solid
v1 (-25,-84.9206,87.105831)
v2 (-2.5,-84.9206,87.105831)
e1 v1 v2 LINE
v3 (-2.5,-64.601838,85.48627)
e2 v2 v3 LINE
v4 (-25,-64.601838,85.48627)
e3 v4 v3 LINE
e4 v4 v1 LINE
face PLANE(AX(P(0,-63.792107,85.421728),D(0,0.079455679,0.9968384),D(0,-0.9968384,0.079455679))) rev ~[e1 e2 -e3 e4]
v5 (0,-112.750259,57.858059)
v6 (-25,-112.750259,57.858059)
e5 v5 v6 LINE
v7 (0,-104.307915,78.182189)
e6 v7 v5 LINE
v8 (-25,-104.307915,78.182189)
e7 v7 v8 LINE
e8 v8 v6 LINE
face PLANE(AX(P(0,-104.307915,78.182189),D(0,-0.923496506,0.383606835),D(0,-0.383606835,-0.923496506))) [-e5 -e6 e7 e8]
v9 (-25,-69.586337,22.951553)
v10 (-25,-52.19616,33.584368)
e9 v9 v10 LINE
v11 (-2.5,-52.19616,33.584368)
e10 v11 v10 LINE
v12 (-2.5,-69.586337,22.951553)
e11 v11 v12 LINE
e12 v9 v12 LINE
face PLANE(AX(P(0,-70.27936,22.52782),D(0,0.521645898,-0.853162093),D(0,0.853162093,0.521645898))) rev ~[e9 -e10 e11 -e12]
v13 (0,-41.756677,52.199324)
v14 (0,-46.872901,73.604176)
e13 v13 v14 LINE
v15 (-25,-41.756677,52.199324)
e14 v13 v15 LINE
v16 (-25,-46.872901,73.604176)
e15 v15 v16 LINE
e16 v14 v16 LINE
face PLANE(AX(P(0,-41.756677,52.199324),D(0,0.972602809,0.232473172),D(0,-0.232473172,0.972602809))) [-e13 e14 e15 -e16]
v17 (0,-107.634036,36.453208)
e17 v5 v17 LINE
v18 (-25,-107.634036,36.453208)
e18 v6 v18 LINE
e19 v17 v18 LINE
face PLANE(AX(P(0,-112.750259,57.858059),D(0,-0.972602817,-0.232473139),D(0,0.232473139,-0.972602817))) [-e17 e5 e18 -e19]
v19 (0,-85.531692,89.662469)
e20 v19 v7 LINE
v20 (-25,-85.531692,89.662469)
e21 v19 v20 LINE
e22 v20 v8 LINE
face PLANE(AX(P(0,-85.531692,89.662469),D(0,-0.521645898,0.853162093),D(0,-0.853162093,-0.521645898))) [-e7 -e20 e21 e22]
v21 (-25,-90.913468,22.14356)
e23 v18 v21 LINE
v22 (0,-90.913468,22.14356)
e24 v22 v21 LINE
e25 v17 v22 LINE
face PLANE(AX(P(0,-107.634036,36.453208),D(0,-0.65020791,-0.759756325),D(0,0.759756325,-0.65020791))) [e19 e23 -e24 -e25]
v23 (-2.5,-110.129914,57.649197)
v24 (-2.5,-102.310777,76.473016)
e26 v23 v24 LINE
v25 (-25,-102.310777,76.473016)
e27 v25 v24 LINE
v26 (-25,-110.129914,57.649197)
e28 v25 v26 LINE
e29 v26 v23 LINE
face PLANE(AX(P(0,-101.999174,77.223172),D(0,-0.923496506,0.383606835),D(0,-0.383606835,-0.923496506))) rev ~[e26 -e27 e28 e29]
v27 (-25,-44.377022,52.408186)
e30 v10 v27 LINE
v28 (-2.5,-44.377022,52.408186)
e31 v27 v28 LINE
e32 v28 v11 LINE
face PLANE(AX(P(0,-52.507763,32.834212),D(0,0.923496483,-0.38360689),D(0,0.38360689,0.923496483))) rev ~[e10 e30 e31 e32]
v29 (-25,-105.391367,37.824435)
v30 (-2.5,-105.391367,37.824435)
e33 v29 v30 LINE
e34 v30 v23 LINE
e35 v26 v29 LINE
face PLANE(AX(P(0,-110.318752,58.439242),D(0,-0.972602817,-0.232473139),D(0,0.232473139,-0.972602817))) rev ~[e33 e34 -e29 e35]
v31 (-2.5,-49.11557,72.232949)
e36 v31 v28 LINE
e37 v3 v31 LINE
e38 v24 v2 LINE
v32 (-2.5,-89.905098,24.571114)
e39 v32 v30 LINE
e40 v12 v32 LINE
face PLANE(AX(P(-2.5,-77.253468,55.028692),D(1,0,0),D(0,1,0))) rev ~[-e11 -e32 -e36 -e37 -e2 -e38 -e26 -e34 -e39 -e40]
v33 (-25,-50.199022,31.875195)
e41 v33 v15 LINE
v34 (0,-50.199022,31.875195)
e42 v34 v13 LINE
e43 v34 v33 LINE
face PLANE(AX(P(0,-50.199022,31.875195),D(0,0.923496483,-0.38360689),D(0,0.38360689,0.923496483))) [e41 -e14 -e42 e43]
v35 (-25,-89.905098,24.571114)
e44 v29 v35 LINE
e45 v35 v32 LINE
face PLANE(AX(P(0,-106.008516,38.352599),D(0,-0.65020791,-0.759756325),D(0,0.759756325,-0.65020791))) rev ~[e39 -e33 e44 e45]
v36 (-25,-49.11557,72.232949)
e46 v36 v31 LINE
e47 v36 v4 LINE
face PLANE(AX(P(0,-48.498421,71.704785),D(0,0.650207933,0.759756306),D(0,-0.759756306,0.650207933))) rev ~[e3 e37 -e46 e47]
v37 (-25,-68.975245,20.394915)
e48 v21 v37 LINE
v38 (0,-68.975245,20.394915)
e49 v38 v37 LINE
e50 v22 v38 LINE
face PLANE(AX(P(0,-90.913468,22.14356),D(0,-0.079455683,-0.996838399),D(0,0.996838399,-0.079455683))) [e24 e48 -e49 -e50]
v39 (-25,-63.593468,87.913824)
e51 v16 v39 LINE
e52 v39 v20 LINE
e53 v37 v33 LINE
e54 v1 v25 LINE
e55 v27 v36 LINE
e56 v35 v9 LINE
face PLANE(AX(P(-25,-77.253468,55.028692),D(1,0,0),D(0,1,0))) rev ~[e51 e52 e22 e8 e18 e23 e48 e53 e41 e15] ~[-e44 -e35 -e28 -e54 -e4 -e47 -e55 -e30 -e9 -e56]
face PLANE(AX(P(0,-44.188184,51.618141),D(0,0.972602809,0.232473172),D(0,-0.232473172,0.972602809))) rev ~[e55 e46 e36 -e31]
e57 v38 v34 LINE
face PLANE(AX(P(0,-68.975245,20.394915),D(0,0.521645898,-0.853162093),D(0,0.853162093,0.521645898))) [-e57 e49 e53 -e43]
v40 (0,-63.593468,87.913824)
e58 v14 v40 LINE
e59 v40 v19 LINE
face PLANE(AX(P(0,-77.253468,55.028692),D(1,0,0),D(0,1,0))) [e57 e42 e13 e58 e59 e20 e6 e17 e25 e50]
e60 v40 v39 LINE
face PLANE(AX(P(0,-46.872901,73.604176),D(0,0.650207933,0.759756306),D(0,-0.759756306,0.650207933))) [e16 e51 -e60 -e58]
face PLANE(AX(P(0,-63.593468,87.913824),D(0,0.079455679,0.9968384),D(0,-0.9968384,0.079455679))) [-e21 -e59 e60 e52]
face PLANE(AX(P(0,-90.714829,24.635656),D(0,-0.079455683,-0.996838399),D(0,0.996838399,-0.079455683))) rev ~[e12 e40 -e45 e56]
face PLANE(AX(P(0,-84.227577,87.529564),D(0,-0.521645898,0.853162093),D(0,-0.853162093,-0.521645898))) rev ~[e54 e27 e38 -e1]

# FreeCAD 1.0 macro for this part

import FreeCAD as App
import Part
import Sketcher
from FreeCAD import Vector


def faces_at(feature, points):
    """Names of the faces that lie closest to the given points."""
    faces = feature.Shape.Faces
    near = lambda p: min(range(len(faces)), key=lambda i: faces[i].distToShape(Part.Vertex(*p))[0])
    return sorted({f"Face{near(p) + 1}" for p in points})

doc = App.newDocument("Part")
body = doc.addObject("PartDesign::Body", "Body")

# Sketch on YZ plane
sketch1 = body.newObject("Sketcher::SketchObject", "Sketch")
sketch1.AttachmentSupport = (doc.getObject("YZ_Plane"), [""])
sketch1.MapMode = "FlatFace"
sketch1.addGeometry([
    Part.LineSegment(Vector(-50.199022, 31.875195, 0), Vector(-41.756677, 52.199324, 0)),  # 0
    Part.LineSegment(Vector(-41.756677, 52.199324, 0), Vector(-46.872901, 73.604176, 0)),  # 1
    Part.LineSegment(Vector(-46.872901, 73.604176, 0), Vector(-63.593468, 87.913824, 0)),  # 2
    Part.LineSegment(Vector(-63.593468, 87.913824, 0), Vector(-85.531692, 89.662469, 0)),  # 3
    Part.LineSegment(Vector(-85.531692, 89.662469, 0), Vector(-104.307915, 78.182189, 0)),  # 4
    Part.LineSegment(Vector(-104.307915, 78.182189, 0), Vector(-112.750259, 57.858059, 0)),  # 5
    Part.LineSegment(Vector(-112.750259, 57.858059, 0), Vector(-107.634036, 36.453208, 0)),  # 6
    Part.LineSegment(Vector(-107.634036, 36.453208, 0), Vector(-90.913468, 22.14356, 0)),  # 7
    Part.LineSegment(Vector(-90.913468, 22.14356, 0), Vector(-68.975245, 20.394915, 0)),  # 8
    Part.LineSegment(Vector(-68.975245, 20.394915, 0), Vector(-50.199022, 31.875195, 0)),  # 9
], False)
sketch1.addConstraint([
    Sketcher.Constraint("Coincident", 0, 2, 1, 1),
    Sketcher.Constraint("Coincident", 1, 2, 2, 1),
    Sketcher.Constraint("Coincident", 2, 2, 3, 1),
    Sketcher.Constraint("Coincident", 3, 2, 4, 1),
    Sketcher.Constraint("Coincident", 4, 2, 5, 1),
    Sketcher.Constraint("Coincident", 5, 2, 6, 1),
    Sketcher.Constraint("Coincident", 6, 2, 7, 1),
    Sketcher.Constraint("Coincident", 7, 2, 8, 1),
    Sketcher.Constraint("Coincident", 8, 2, 9, 1),
    Sketcher.Constraint("Coincident", 9, 2, 0, 1),
    Sketcher.Constraint("Parallel", 0, 5),
    Sketcher.Constraint("Parallel", 1, 6),
    Sketcher.Constraint("Parallel", 2, 7),
    Sketcher.Constraint("Parallel", 3, 8),
    Sketcher.Constraint("Parallel", 4, 9),
    Sketcher.Constraint("Equal", 0, 1),
    Sketcher.Constraint("Equal", 1, 2),
    Sketcher.Constraint("Equal", 2, 3),
    Sketcher.Constraint("Equal", 3, 4),
    Sketcher.Constraint("Equal", 4, 5),
    Sketcher.Constraint("Equal", 5, 6),
    Sketcher.Constraint("Equal", 6, 7),
    Sketcher.Constraint("DistanceX", 1, 2, -1, 1, 46.872901),
    Sketcher.Constraint("DistanceY", 0, 2, 2, 2, 35.7145),
    Sketcher.Constraint("DistanceY", -1, 1, 3, 2, 89.662469),
    Sketcher.Constraint("DistanceY", -1, 1, 4, 2, 78.182189),
    Sketcher.Constraint("DistanceX", 5, 2, -1, 1, 112.750259),
    Sketcher.Constraint("DistanceY", -1, 1, 5, 2, 57.858059),
    Sketcher.Constraint("DistanceY", 0, 2, 1, 2, 21.404852),
    Sketcher.Constraint("DistanceX", 2, 2, 0, 2, 21.836791),
])
pad1 = body.newObject("PartDesign::Pad", "Pad")
pad1.Profile = sketch1
pad1.Length = 25
pad1.Reversed = True
doc.recompute()

thickness = body.newObject("PartDesign::Thickness", "Thickness")
thickness.Base = (pad1, faces_at(pad1, [(-25, -77.253, 55.029)]))
thickness.Value = 2.5
thickness.Reversed = True
thickness.Join = "Arc"

doc.recompute()
